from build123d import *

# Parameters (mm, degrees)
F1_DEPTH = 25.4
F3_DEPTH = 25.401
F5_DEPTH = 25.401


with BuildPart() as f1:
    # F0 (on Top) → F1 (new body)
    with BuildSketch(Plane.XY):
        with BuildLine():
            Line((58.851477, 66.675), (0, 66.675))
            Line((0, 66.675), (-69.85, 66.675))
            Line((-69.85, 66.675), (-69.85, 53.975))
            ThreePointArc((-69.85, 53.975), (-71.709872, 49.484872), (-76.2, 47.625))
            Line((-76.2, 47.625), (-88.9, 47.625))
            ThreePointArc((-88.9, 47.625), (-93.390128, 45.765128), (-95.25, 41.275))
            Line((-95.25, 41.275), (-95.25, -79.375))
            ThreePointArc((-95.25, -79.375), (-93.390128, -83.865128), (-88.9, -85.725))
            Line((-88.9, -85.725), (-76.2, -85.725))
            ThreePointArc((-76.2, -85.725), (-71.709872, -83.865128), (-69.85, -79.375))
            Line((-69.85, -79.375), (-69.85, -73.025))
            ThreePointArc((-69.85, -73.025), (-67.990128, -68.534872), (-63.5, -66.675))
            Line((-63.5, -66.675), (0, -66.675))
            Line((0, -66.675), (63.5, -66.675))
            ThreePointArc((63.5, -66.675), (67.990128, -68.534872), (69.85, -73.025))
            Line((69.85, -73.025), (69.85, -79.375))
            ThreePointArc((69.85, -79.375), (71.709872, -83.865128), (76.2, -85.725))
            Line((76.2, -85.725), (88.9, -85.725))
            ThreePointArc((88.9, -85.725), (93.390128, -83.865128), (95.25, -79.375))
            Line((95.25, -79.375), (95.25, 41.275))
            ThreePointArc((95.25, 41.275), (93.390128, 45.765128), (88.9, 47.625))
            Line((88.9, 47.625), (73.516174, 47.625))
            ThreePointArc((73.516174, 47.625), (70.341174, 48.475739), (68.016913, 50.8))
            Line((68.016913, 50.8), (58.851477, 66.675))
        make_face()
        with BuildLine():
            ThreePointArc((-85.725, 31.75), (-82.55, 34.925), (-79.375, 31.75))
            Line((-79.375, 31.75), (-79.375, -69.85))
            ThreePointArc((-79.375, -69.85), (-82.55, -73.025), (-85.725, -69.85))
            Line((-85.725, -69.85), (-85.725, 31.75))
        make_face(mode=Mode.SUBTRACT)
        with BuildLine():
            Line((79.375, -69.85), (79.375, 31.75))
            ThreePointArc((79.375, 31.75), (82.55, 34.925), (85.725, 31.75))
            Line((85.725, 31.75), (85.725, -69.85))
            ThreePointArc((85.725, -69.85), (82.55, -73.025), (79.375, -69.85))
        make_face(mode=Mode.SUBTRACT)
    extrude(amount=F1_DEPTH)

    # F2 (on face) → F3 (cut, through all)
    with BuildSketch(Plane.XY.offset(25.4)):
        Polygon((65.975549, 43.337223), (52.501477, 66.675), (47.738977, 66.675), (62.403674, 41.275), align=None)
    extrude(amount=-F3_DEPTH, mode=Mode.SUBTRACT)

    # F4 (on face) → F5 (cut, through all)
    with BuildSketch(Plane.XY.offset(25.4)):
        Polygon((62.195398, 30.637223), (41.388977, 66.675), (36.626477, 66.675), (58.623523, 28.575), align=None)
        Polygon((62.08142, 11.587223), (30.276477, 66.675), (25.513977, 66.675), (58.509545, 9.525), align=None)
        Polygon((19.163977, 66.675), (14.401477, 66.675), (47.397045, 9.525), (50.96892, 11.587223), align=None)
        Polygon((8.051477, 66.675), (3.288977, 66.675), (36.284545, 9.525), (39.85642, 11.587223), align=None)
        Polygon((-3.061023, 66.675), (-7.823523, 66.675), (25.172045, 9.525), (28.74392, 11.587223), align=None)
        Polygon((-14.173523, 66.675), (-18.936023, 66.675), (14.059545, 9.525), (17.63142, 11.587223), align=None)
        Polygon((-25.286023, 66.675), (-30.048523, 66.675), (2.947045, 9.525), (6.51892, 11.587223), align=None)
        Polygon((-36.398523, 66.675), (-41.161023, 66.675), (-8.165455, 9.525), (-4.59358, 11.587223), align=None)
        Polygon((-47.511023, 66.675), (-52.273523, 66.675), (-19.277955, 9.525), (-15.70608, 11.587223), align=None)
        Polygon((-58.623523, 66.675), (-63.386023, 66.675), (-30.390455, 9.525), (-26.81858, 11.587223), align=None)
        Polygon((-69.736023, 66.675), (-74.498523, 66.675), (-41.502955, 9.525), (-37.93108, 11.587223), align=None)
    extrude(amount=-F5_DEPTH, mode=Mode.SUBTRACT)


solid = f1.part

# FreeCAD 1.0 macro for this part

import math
import FreeCAD as App
import Part
import Sketcher

V = App.Vector
Q = App.Units.Quantity


def add_polygon(sketch, points):
    """Adds a closed chain of lines whose ends are joined by coincident constraints."""
    first, n = sketch.GeometryCount, len(points)
    for a, b in zip(points, points[1:] + points[:1]):
        sketch.addGeometry(Part.LineSegment(App.Vector(*a, 0), App.Vector(*b, 0)), False)
    for i in range(n):
        sketch.addConstraint(Sketcher.Constraint("Coincident", first + i, 2, first + (i + 1) % n, 1))

doc = App.newDocument("Part")
body = doc.addObject("PartDesign::Body", "Body")

# Sketch on XY plane
sketch1 = body.newObject("Sketcher::SketchObject", "Sketch")
sketch1.AttachmentSupport = (doc.getObject("XY_Plane"), [""])
sketch1.MapMode = "FlatFace"
sketch1.addGeometry(Part.LineSegment(V(58.851477, 66.675, 0), V(-69.85, 66.675, 0)), False)
sketch1.addGeometry(Part.LineSegment(V(-69.85, 66.675, 0), V(-69.85, 53.975, 0)), False)
sketch1.addGeometry(Part.ArcOfCircle(Part.Circle(V(-76.2, 53.975, 0), V(0, 0, 1), 6.35), math.radians(-89.999998), math.radians(-0.000002)), False)
sketch1.addGeometry(Part.LineSegment(V(-76.2, 47.625, 0), V(-88.9, 47.625, 0)), False)
sketch1.addGeometry(Part.ArcOfCircle(Part.Circle(V(-88.9, 41.275, 0), V(0, 0, 1), 6.35), math.radians(90.000002), math.radians(179.999998)), False)
sketch1.addGeometry(Part.LineSegment(V(-95.25, 41.275, 0), V(-95.25, -79.375, 0)), False)
sketch1.addGeometry(Part.ArcOfCircle(Part.Circle(V(-88.9, -79.375, 0), V(0, 0, 1), 6.35), math.radians(-179.999998), math.radians(-90.000002)), False)
sketch1.addGeometry(Part.LineSegment(V(-88.9, -85.725, 0), V(-76.2, -85.725, 0)), False)
sketch1.addGeometry(Part.ArcOfCircle(Part.Circle(V(-76.2, -79.375, 0), V(0, 0, 1), 6.35), math.radians(-89.999998), math.radians(-0.000002)), False)
sketch1.addGeometry(Part.LineSegment(V(-69.85, -79.375, 0), V(-69.85, -73.025, 0)), False)
sketch1.addGeometry(Part.ArcOfCircle(Part.Circle(V(-63.5, -73.025, 0), V(0, 0, 1), 6.35), math.radians(90.000002), math.radians(179.999998)), False)
sketch1.addGeometry(Part.LineSegment(V(-63.5, -66.675, 0), V(63.5, -66.675, 0)), False)
sketch1.addGeometry(Part.ArcOfCircle(Part.Circle(V(63.5, -73.025, 0), V(0, 0, 1), 6.35), math.radians(0.000002), math.radians(89.999998)), False)
sketch1.addGeometry(Part.LineSegment(V(69.85, -73.025, 0), V(69.85, -79.375, 0)), False)
sketch1.addGeometry(Part.ArcOfCircle(Part.Circle(V(76.2, -79.375, 0), V(0, 0, 1), 6.35), math.radians(-179.999998), math.radians(-90.000002)), False)
sketch1.addGeometry(Part.LineSegment(V(76.2, -85.725, 0), V(88.9, -85.725, 0)), False)
sketch1.addGeometry(Part.ArcOfCircle(Part.Circle(V(88.9, -79.375, 0), V(0, 0, 1), 6.35), math.radians(-89.999998), math.radians(-0.000002)), False)
sketch1.addGeometry(Part.LineSegment(V(95.25, -79.375, 0), V(95.25, 41.275, 0)), False)
sketch1.addGeometry(Part.ArcOfCircle(Part.Circle(V(88.9, 41.275, 0), V(0, 0, 1), 6.35), math.radians(0.000002), math.radians(89.999998)), False)
sketch1.addGeometry(Part.LineSegment(V(88.9, 47.625, 0), V(73.516174, 47.625, 0)), False)
sketch1.addGeometry(Part.ArcOfCircle(Part.Circle(V(73.516175, 53.975001, 0), V(0, 0, 1), 6.350001), math.radians(-149.999996), math.radians(-90.000007)), False)
sketch1.addGeometry(Part.LineSegment(V(68.016913, 50.8, 0), V(58.851477, 66.675, 0)), False)
sketch1.addGeometry(Part.LineSegment(V(-85.725, -69.85, 0), V(-85.725, 31.75, 0)), False)
sketch1.addGeometry(Part.ArcOfCircle(Part.Circle(V(-82.55, 31.75, 0), V(0, 0, 1), 3.175), math.radians(0), math.radians(180)), False)
sketch1.addGeometry(Part.LineSegment(V(-79.375, 31.75, 0), V(-79.375, -69.85, 0)), False)
sketch1.addGeometry(Part.ArcOfCircle(Part.Circle(V(-82.55, -69.85, 0), V(0, 0, 1), 3.175), math.radians(180), math.radians(360)), False)
sketch1.addGeometry(Part.ArcOfCircle(Part.Circle(V(82.55, -69.85, 0), V(0, 0, 1), 3.175), math.radians(180), math.radians(360)), False)
sketch1.addGeometry(Part.LineSegment(V(79.375, -69.85, 0), V(79.375, 31.75, 0)), False)
sketch1.addGeometry(Part.ArcOfCircle(Part.Circle(V(82.55, 31.75, 0), V(0, 0, 1), 3.175), math.radians(0), math.radians(180)), False)
sketch1.addGeometry(Part.LineSegment(V(85.725, 31.75, 0), V(85.725, -69.85, 0)), False)
sketch1.addConstraint(Sketcher.Constraint("Coincident", 0, 2, 1, 1))
sketch1.addConstraint(Sketcher.Constraint("Tangent", 1, 2, 2, 2))
sketch1.addConstraint(Sketcher.Constraint("Tangent", 2, 1, 3, 1))
sketch1.addConstraint(Sketcher.Constraint("Tangent", 3, 2, 4, 1))
sketch1.addConstraint(Sketcher.Constraint("Tangent", 4, 2, 5, 1))
sketch1.addConstraint(Sketcher.Constraint("Tangent", 5, 2, 6, 1))
sketch1.addConstraint(Sketcher.Constraint("Tangent", 6, 2, 7, 1))
sketch1.addConstraint(Sketcher.Constraint("Tangent", 7, 2, 8, 1))
sketch1.addConstraint(Sketcher.Constraint("Tangent", 8, 2, 9, 1))
sketch1.addConstraint(Sketcher.Constraint("Tangent", 9, 2, 10, 2))
sketch1.addConstraint(Sketcher.Constraint("Tangent", 10, 1, 11, 1))
sketch1.addConstraint(Sketcher.Constraint("Tangent", 11, 2, 12, 2))
sketch1.addConstraint(Sketcher.Constraint("Tangent", 12, 1, 13, 1))
sketch1.addConstraint(Sketcher.Constraint("Tangent", 13, 2, 14, 1))
sketch1.addConstraint(Sketcher.Constraint("Tangent", 14, 2, 15, 1))
sketch1.addConstraint(Sketcher.Constraint("Tangent", 15, 2, 16, 1))
sketch1.addConstraint(Sketcher.Constraint("Tangent", 16, 2, 17, 1))
sketch1.addConstraint(Sketcher.Constraint("Tangent", 17, 2, 18, 1))
sketch1.addConstraint(Sketcher.Constraint("Tangent", 18, 2, 19, 1))
sketch1.addConstraint(Sketcher.Constraint("Tangent", 19, 2, 20, 2))
sketch1.addConstraint(Sketcher.Constraint("Tangent", 20, 1, 21, 1))
sketch1.addConstraint(Sketcher.Constraint("Coincident", 21, 2, 0, 1))
sketch1.addConstraint(Sketcher.Constraint("Tangent", 22, 2, 23, 2))
sketch1.addConstraint(Sketcher.Constraint("Tangent", 23, 1, 24, 1))
sketch1.addConstraint(Sketcher.Constraint("Tangent", 24, 2, 25, 2))
sketch1.addConstraint(Sketcher.Constraint("Tangent", 25, 1, 22, 1))
sketch1.addConstraint(Sketcher.Constraint("Tangent", 26, 1, 27, 1))
sketch1.addConstraint(Sketcher.Constraint("Tangent", 27, 2, 28, 2))
sketch1.addConstraint(Sketcher.Constraint("Tangent", 28, 1, 29, 1))
sketch1.addConstraint(Sketcher.Constraint("Tangent", 29, 2, 26, 2))
sketch1.addConstraint(Sketcher.Constraint("Horizontal", 0))
sketch1.addConstraint(Sketcher.Constraint("Vertical", 1))
sketch1.addConstraint(Sketcher.Constraint("Horizontal", 3))
sketch1.addConstraint(Sketcher.Constraint("Vertical", 5))
sketch1.addConstraint(Sketcher.Constraint("Horizontal", 7))
sketch1.addConstraint(Sketcher.Constraint("Vertical", 9))
sketch1.addConstraint(Sketcher.Constraint("Horizontal", 11))
sketch1.addConstraint(Sketcher.Constraint("Vertical", 13))
sketch1.addConstraint(Sketcher.Constraint("Horizontal", 15))
sketch1.addConstraint(Sketcher.Constraint("Vertical", 17))
sketch1.addConstraint(Sketcher.Constraint("Horizontal", 19))
sketch1.addConstraint(Sketcher.Constraint("Vertical", 22))
sketch1.addConstraint(Sketcher.Constraint("Vertical", 24))
sketch1.addConstraint(Sketcher.Constraint("Vertical", 27))
sketch1.addConstraint(Sketcher.Constraint("Vertical", 29))
sketch1.addConstraint(Sketcher.Constraint("Equal", 2, 4))
sketch1.addConstraint(Sketcher.Constraint("Equal", 4, 6))
sketch1.addConstraint(Sketcher.Constraint("Equal", 6, 8))
sketch1.addConstraint(Sketcher.Constraint("Equal", 8, 10))
sketch1.addConstraint(Sketcher.Constraint("Equal", 10, 12))
sketch1.addConstraint(Sketcher.Constraint("Equal", 12, 14))
sketch1.addConstraint(Sketcher.Constraint("Equal", 14, 16))
sketch1.addConstraint(Sketcher.Constraint("Equal", 16, 18))
sketch1.addConstraint(Sketcher.Constraint("Equal", 18, 20))
sketch1.addConstraint(Sketcher.Constraint("Equal", 25, 26))
sketch1.addConstraint(Sketcher.Constraint("Symmetric", 8, 3, 14, 3, -2))
sketch1.addConstraint(Sketcher.Constraint("Symmetric", 4, 3, 18, 3, -2))
sketch1.addConstraint(Sketcher.Constraint("Symmetric", 25, 3, 26, 3, -2))
sketch1.addConstraint(Sketcher.Constraint("Horizontal", 23, 3, 28, 3))
sketch1.addConstraint(Sketcher.Constraint("Vertical", 2, 3, 8, 3))
sketch1.addConstraint(Sketcher.Constraint("Equal", 15, 1))
sketch1.addConstraint(Sketcher.Constraint("DistanceX", 11, 1, 11, 2, Q("5 in")))
sketch1.addConstraint(Sketcher.Constraint("DistanceY", 22, 1, 22, 2, Q("4 in")))
sketch1.addConstraint(Sketcher.Constraint("Radius", 2, Q("0.25 in")))
sketch1.addConstraint(Sketcher.Constraint("DistanceX", 3, 2, 3, 1, Q("0.5 in")))
sketch1.addConstraint(Sketcher.Constraint("DistanceY", -1, 1, 20, 1, Q("2 in")))
sketch1.addConstraint(Sketcher.Constraint("Angle", 21, Q("120.000001 deg")))
sketch1.addConstraint(Sketcher.Constraint("Radius", 23, Q("0.125 in")))
sketch1.addConstraint(Sketcher.Constraint("DistanceY", 10, 3, 2, 3, Q("5 in")))
sketch1.addConstraint(Sketcher.Constraint("DistanceY", 5, 2, 5, 1, Q("4.75 in")))
sketch1.addConstraint(Sketcher.Constraint("DistanceX", 23, 3, 0, 2, Q("0.5 in")))
sketch1.addConstraint(Sketcher.Constraint("DistanceY", -1, 1, 23, 3, Q("1.25 in")))
sketch1.addConstraint(Sketcher.Constraint("DistanceX", 0, 2, 0, 1, 128.701477))
pad1 = body.newObject("PartDesign::Pad", "Pad")
pad1.Profile = sketch1
pad1.Length = Q("1 in")

# Sketch on XY plane
sketch2 = body.newObject("Sketcher::SketchObject", "Sketch001")
sketch2.AttachmentSupport = (doc.getObject("XY_Plane"), [""])
sketch2.MapMode = "FlatFace"
sketch2.AttachmentOffset = App.Placement(V(0, 0, 1 * 25.4), App.Rotation())
add_polygon(sketch2, [(65.975549, 43.337223), (52.501477, 66.675), (47.738977, 66.675), (62.403674, 41.275)])  # lines 0-3
sketch2.addConstraint(Sketcher.Constraint("Horizontal", 1))
sketch2.addConstraint(Sketcher.Constraint("Parallel", 0, 2))
sketch2.addConstraint(Sketcher.Constraint("Perpendicular", 2, 3))
sketch2.addConstraint(Sketcher.Constraint("Angle", 0, Q("120 deg")))
sketch2.addConstraint(Sketcher.Constraint("DistanceY", 2, 2, 0, 2, Q("1 in")))
sketch2.addConstraint(Sketcher.Constraint("DistanceX", 1, 2, 1, 1, Q("0.1875 in")))
sketch2.addConstraint(Sketcher.Constraint("DistanceY", -1, 1, 0, 2, Q("2.625 in")))
sketch2.addConstraint(Sketcher.Constraint("DistanceX", -1, 1, 3, 2, 65.975549))
pocket1 = body.newObject("PartDesign::Pocket", "Pocket")
pocket1.Profile = sketch2
pocket1.Type = "ThroughAll"

# Sketch on XY plane
sketch3 = body.newObject("Sketcher::SketchObject", "Sketch002")
sketch3.AttachmentSupport = (doc.getObject("XY_Plane"), [""])
sketch3.MapMode = "FlatFace"
sketch3.AttachmentOffset = App.Placement(V(0, 0, 1 * 25.4), App.Rotation())
add_polygon(sketch3, [(62.195398, 30.637223), (41.388977, 66.675), (36.626477, 66.675), (58.623523, 28.575)])  # lines 0-3
add_polygon(sketch3, [(62.08142, 11.587223), (30.276477, 66.675), (25.513977, 66.675), (58.509545, 9.525)])  # lines 4-7
add_polygon(sketch3, [(19.163977, 66.675), (14.401477, 66.675), (47.397045, 9.525), (50.96892, 11.587223)])  # lines 8-11
add_polygon(sketch3, [(8.051477, 66.675), (3.288977, 66.675), (36.284545, 9.525), (39.85642, 11.587223)])  # lines 12-15
add_polygon(sketch3, [(-3.061023, 66.675), (-7.823523, 66.675), (25.172045, 9.525), (28.74392, 11.587223)])  # lines 16-19
add_polygon(sketch3, [(-14.173523, 66.675), (-18.936023, 66.675), (14.059545, 9.525), (17.63142, 11.587223)])  # lines 20-23
add_polygon(sketch3, [(-25.286023, 66.675), (-30.048523, 66.675), (2.947045, 9.525), (6.51892, 11.587223)])  # lines 24-27
add_polygon(sketch3, [(-36.398523, 66.675), (-41.161023, 66.675), (-8.165455, 9.525), (-4.59358, 11.587223)])  # lines 28-31
add_polygon(sketch3, [(-47.511023, 66.675), (-52.273523, 66.675), (-19.277955, 9.525), (-15.70608, 11.587223)])  # lines 32-35
add_polygon(sketch3, [(-58.623523, 66.675), (-63.386023, 66.675), (-30.390455, 9.525), (-26.81858, 11.587223)])  # lines 36-39
add_polygon(sketch3, [(-69.736023, 66.675), (-74.498523, 66.675), (-41.502955, 9.525), (-37.93108, 11.587223)])  # lines 40-43
sketch3.addConstraint(Sketcher.Constraint("Horizontal", 1))
sketch3.addConstraint(Sketcher.Constraint("Horizontal", 5))
sketch3.addConstraint(Sketcher.Constraint("Horizontal", 8))
sketch3.addConstraint(Sketcher.Constraint("Horizontal", 12))
sketch3.addConstraint(Sketcher.Constraint("Horizontal", 16))
sketch3.addConstraint(Sketcher.Constraint("Horizontal", 20))
sketch3.addConstraint(Sketcher.Constraint("Horizontal", 24))
sketch3.addConstraint(Sketcher.Constraint("Horizontal", 28))
sketch3.addConstraint(Sketcher.Constraint("Horizontal", 32))
sketch3.addConstraint(Sketcher.Constraint("Horizontal", 36))
sketch3.addConstraint(Sketcher.Constraint("Horizontal", 40))
sketch3.addConstraint(Sketcher.Constraint("Parallel", 0, 2))
sketch3.addConstraint(Sketcher.Constraint("Perpendicular", 2, 3))
sketch3.addConstraint(Sketcher.Constraint("Perpendicular", 3, 4))
sketch3.addConstraint(Sketcher.Constraint("Parallel", 4, 6))
sketch3.addConstraint(Sketcher.Constraint("Perpendicular", 6, 7))
sketch3.addConstraint(Sketcher.Constraint("Perpendicular", 7, 9))
sketch3.addConstraint(Sketcher.Constraint("Perpendicular", 9, 10))
sketch3.addConstraint(Sketcher.Constraint("Perpendicular", 10, 11))
sketch3.addConstraint(Sketcher.Constraint("Parallel", 11, 13))
sketch3.addConstraint(Sketcher.Constraint("Perpendicular", 13, 14))
sketch3.addConstraint(Sketcher.Constraint("Perpendicular", 14, 15))
sketch3.addConstraint(Sketcher.Constraint("Parallel", 15, 17))
sketch3.addConstraint(Sketcher.Constraint("Perpendicular", 17, 18))
sketch3.addConstraint(Sketcher.Constraint("Perpendicular", 18, 19))
sketch3.addConstraint(Sketcher.Constraint("Parallel", 19, 21))
sketch3.addConstraint(Sketcher.Constraint("Perpendicular", 21, 22))
sketch3.addConstraint(Sketcher.Constraint("Perpendicular", 22, 23))
sketch3.addConstraint(Sketcher.Constraint("Parallel", 23, 25))
sketch3.addConstraint(Sketcher.Constraint("Perpendicular", 25, 26))
sketch3.addConstraint(Sketcher.Constraint("Perpendicular", 26, 27))
sketch3.addConstraint(Sketcher.Constraint("Parallel", 27, 29))
sketch3.addConstraint(Sketcher.Constraint("Perpendicular", 29, 30))
sketch3.addConstraint(Sketcher.Constraint("Perpendicular", 30, 31))
sketch3.addConstraint(Sketcher.Constraint("Parallel", 31, 33))
sketch3.addConstraint(Sketcher.Constraint("Perpendicular", 33, 34))
sketch3.addConstraint(Sketcher.Constraint("Perpendicular", 34, 35))
sketch3.addConstraint(Sketcher.Constraint("Parallel", 35, 37))
sketch3.addConstraint(Sketcher.Constraint("Perpendicular", 37, 38))
sketch3.addConstraint(Sketcher.Constraint("Perpendicular", 38, 39))
sketch3.addConstraint(Sketcher.Constraint("Parallel", 39, 41))
sketch3.addConstraint(Sketcher.Constraint("Perpendicular", 41, 42))
sketch3.addConstraint(Sketcher.Constraint("Perpendicular", 42, 43))
sketch3.addConstraint(Sketcher.Constraint("Horizontal", 1, 2, 4, 2))
sketch3.addConstraint(Sketcher.Constraint("Horizontal", 5, 2, 8, 2))
sketch3.addConstraint(Sketcher.Constraint("Horizontal", 6, 2, 9, 2))
sketch3.addConstraint(Sketcher.Constraint("Horizontal", 7, 2, 10, 2))
sketch3.addConstraint(Sketcher.Constraint("Horizontal", 11, 2, 12, 2))
sketch3.addConstraint(Sketcher.Constraint("Horizontal", 9, 2, 13, 2))
sketch3.addConstraint(Sketcher.Constraint("Horizontal", 10, 2, 14, 2))
sketch3.addConstraint(Sketcher.Constraint("Horizontal", 15, 2, 16, 2))
sketch3.addConstraint(Sketcher.Constraint("Horizontal", 13, 2, 17, 2))
sketch3.addConstraint(Sketcher.Constraint("Horizontal", 14, 2, 18, 2))
sketch3.addConstraint(Sketcher.Constraint("Horizontal", 19, 2, 20, 2))
sketch3.addConstraint(Sketcher.Constraint("Horizontal", 17, 2, 21, 2))
sketch3.addConstraint(Sketcher.Constraint("Horizontal", 18, 2, 22, 2))
sketch3.addConstraint(Sketcher.Constraint("Horizontal", 23, 2, 24, 2))
sketch3.addConstraint(Sketcher.Constraint("Horizontal", 21, 2, 25, 2))
sketch3.addConstraint(Sketcher.Constraint("Horizontal", 22, 2, 26, 2))
sketch3.addConstraint(Sketcher.Constraint("Horizontal", 27, 2, 28, 2))
sketch3.addConstraint(Sketcher.Constraint("Horizontal", 25, 2, 29, 2))
sketch3.addConstraint(Sketcher.Constraint("Horizontal", 26, 2, 30, 2))
sketch3.addConstraint(Sketcher.Constraint("Horizontal", 31, 2, 32, 2))
sketch3.addConstraint(Sketcher.Constraint("Horizontal", 29, 2, 33, 2))
sketch3.addConstraint(Sketcher.Constraint("Horizontal", 30, 2, 34, 2))
sketch3.addConstraint(Sketcher.Constraint("Horizontal", 35, 2, 36, 2))
sketch3.addConstraint(Sketcher.Constraint("Horizontal", 33, 2, 37, 2))
sketch3.addConstraint(Sketcher.Constraint("Horizontal", 34, 2, 38, 2))
sketch3.addConstraint(Sketcher.Constraint("Horizontal", 39, 2, 40, 2))
sketch3.addConstraint(Sketcher.Constraint("Horizontal", 37, 2, 41, 2))
sketch3.addConstraint(Sketcher.Constraint("Horizontal", 38, 2, 42, 2))
sketch3.addConstraint(Sketcher.Constraint("Equal", 1, 5))
sketch3.addConstraint(Sketcher.Constraint("Angle", 0, Q("120.000001 deg")))
sketch3.addConstraint(Sketcher.Constraint("DistanceY", 2, 2, 0, 2, Q("1.5 in")))
sketch3.addConstraint(Sketcher.Constraint("DistanceX", 1, 2, 1, 1, Q("0.1875 in")))
sketch3.addConstraint(Sketcher.Constraint("DistanceX", 4, 2, 1, 2, Q("0.25 in")))
sketch3.addConstraint(Sketcher.Constraint("DistanceY", 6, 2, 2, 2, Q("0.75 in")))
sketch3.addConstraint(Sketcher.Constraint("DistanceX", 11, 2, 5, 2, Q("0.25 in")))
sketch3.addConstraint(Sketcher.Constraint("DistanceX", 15, 2, 8, 2, Q("0.25 in")))
sketch3.addConstraint(Sketcher.Constraint("DistanceX", 19, 2, 12, 2, Q("0.25 in")))
sketch3.addConstraint(Sketcher.Constraint("DistanceX", 23, 2, 16, 2, Q("0.25 in")))
sketch3.addConstraint(Sketcher.Constraint("DistanceX", 27, 2, 20, 2, Q("0.25 in")))
sketch3.addConstraint(Sketcher.Constraint("DistanceX", 31, 2, 24, 2, Q("0.25 in")))
sketch3.addConstraint(Sketcher.Constraint("DistanceX", 35, 2, 28, 2, Q("0.25 in")))
sketch3.addConstraint(Sketcher.Constraint("DistanceX", 39, 2, 32, 2, Q("0.25 in")))
sketch3.addConstraint(Sketcher.Constraint("DistanceX", 43, 2, 36, 2, Q("0.25 in")))
sketch3.addConstraint(Sketcher.Constraint("DistanceY", -1, 1, 0, 2, Q("2.625 in")))
sketch3.addConstraint(Sketcher.Constraint("DistanceX", -1, 1, 7, 2, 62.08142))
pocket2 = body.newObject("PartDesign::Pocket", "Pocket001")
pocket2.Profile = sketch3
pocket2.Type = "ThroughAll"

doc.recompute()
